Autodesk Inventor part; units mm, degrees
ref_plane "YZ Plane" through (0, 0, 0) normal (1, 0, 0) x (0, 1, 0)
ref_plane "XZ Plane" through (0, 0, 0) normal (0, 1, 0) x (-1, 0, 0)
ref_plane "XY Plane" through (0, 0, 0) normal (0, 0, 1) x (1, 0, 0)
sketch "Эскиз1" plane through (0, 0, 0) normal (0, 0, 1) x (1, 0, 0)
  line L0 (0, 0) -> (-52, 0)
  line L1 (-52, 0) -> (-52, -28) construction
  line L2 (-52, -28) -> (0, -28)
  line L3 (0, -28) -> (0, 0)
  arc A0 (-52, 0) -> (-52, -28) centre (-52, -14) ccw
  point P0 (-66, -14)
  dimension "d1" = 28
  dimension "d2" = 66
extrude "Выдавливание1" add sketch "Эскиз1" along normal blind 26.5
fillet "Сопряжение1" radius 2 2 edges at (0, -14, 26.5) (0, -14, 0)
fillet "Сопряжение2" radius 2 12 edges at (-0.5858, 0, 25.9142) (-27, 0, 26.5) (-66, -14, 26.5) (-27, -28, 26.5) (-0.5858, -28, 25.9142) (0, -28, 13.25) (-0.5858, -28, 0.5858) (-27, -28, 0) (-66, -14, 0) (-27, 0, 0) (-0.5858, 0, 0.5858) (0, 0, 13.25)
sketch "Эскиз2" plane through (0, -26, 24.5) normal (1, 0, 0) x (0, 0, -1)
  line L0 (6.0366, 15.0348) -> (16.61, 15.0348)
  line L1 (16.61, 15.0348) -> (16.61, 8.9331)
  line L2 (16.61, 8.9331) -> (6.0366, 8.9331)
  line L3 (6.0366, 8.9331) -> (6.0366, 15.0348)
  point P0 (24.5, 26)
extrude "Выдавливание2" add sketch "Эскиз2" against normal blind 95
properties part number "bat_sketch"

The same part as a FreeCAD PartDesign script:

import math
import FreeCAD as App
import Part
import Sketcher
Q = App.Units.Quantity


def edges_at(feature, points):
    """Names of the edges that pass closest to the given points."""
    edges = feature.Shape.Edges
    near = lambda p: min(range(len(edges)), key=lambda i: edges[i].distToShape(Part.Vertex(*p))[0])
    return sorted({f"Edge{near(p) + 1}" for p in points})

doc = App.newDocument("Part")
body = doc.addObject("PartDesign::Body", "Body")

sketch1 = body.newObject("Sketcher::SketchObject", "Sketch")
sketch1.AttachmentSupport = (doc.getObject("XY_Plane"), [""])
sketch1.MapMode = "FlatFace"
sketch1.addGeometry([
    Part.LineSegment(App.Vector(0, -28, 0), App.Vector(0, 0, 0)),
    Part.LineSegment(App.Vector(0, 0, 0), App.Vector(-52, 0, 0)),
    Part.ArcOfCircle(Part.Circle(App.Vector(-52, -14, 0), App.Vector(0, 0, 1), 14), math.radians(90), math.radians(270)),
    Part.LineSegment(App.Vector(-52, -28, 0), App.Vector(0, -28, 0)),
], False)
sketch1.addConstraint([
    Sketcher.Constraint("Coincident", 0, 2, 1, 1),
    Sketcher.Constraint("Tangent", 1, 2, 2, 1),
    Sketcher.Constraint("Tangent", 2, 2, 3, 1),
    Sketcher.Constraint("Coincident", 3, 2, 0, 1),
    Sketcher.Constraint("Vertical", 0),
    Sketcher.Constraint("Horizontal", 1),
    Sketcher.Constraint("Horizontal", 3),
    Sketcher.Constraint("Coincident", 0, 2, -1, 1),
    Sketcher.Constraint("Radius", 2, Q("14 mm")),
    Sketcher.Constraint("DistanceX", 1, 2, 1, 1, Q("52 mm")),
])
pad1 = body.newObject("PartDesign::Pad", "Pad")
pad1.Profile = sketch1
pad1.Length = 26.5
doc.recompute()

fillet = body.newObject("PartDesign::Fillet", "Fillet")
fillet.Base = (pad1, edges_at(pad1, [(0, -14, 26.5), (0, -14, 0)]))
fillet.Radius = 2
doc.recompute()

fillet2 = body.newObject("PartDesign::Fillet", "Fillet001")
fillet2.Base = (fillet, edges_at(fillet, [
    (-0.586, 0, 25.914),
    (-27, 0, 26.5),
    (-66, -14, 26.5),
    (-27, -28, 26.5),
    (-0.586, -28, 25.914),
    (0, -28, 13.25),
    (-0.586, -28, 0.586),
    (-27, -28, 0),
    (-66, -14, 0),
    (-27, 0, 0),
    (-0.586, 0, 0.586),
    (0, 0, 13.25),
]))
fillet2.Radius = 2

sketch2 = body.newObject("Sketcher::SketchObject", "Sketch001")
sketch2.AttachmentSupport = (doc.getObject("YZ_Plane"), [""])
sketch2.MapMode = "FlatFace"
sketch2.addGeometry([
    Part.LineSegment(App.Vector(-11, 8, 0), App.Vector(-11, 18, 0)),
    Part.LineSegment(App.Vector(-11, 18, 0), App.Vector(-17, 18, 0)),
    Part.LineSegment(App.Vector(-17, 18, 0), App.Vector(-17, 8, 0)),
    Part.LineSegment(App.Vector(-17, 8, 0), App.Vector(-11, 8, 0)),
], False)
sketch2.addConstraint([
    Sketcher.Constraint("Coincident", 0, 2, 1, 1),
    Sketcher.Constraint("Coincident", 1, 2, 2, 1),
    Sketcher.Constraint("Coincident", 2, 2, 3, 1),
    Sketcher.Constraint("Coincident", 3, 2, 0, 1),
    Sketcher.Constraint("Vertical", 0),
    Sketcher.Constraint("Horizontal", 1),
    Sketcher.Constraint("Vertical", 2),
    Sketcher.Constraint("Horizontal", 3),
    Sketcher.Constraint("DistanceY", -1, 1, 2, 2, Q("7.89 mm")),
    Sketcher.Constraint("DistanceX", 1, 2, 1, 1, Q("6.1017 mm")),
    Sketcher.Constraint("DistanceY", 0, 1, 0, 2, Q("10.5734 mm")),
    Sketcher.Constraint("DistanceX", 1, 2, -1, 1, Q("17.067 mm")),
])
pad2 = body.newObject("PartDesign::Pad", "Pad001")
pad2.Profile = sketch2
pad2.Length = 95
pad2.Reversed = True

doc.recompute()
